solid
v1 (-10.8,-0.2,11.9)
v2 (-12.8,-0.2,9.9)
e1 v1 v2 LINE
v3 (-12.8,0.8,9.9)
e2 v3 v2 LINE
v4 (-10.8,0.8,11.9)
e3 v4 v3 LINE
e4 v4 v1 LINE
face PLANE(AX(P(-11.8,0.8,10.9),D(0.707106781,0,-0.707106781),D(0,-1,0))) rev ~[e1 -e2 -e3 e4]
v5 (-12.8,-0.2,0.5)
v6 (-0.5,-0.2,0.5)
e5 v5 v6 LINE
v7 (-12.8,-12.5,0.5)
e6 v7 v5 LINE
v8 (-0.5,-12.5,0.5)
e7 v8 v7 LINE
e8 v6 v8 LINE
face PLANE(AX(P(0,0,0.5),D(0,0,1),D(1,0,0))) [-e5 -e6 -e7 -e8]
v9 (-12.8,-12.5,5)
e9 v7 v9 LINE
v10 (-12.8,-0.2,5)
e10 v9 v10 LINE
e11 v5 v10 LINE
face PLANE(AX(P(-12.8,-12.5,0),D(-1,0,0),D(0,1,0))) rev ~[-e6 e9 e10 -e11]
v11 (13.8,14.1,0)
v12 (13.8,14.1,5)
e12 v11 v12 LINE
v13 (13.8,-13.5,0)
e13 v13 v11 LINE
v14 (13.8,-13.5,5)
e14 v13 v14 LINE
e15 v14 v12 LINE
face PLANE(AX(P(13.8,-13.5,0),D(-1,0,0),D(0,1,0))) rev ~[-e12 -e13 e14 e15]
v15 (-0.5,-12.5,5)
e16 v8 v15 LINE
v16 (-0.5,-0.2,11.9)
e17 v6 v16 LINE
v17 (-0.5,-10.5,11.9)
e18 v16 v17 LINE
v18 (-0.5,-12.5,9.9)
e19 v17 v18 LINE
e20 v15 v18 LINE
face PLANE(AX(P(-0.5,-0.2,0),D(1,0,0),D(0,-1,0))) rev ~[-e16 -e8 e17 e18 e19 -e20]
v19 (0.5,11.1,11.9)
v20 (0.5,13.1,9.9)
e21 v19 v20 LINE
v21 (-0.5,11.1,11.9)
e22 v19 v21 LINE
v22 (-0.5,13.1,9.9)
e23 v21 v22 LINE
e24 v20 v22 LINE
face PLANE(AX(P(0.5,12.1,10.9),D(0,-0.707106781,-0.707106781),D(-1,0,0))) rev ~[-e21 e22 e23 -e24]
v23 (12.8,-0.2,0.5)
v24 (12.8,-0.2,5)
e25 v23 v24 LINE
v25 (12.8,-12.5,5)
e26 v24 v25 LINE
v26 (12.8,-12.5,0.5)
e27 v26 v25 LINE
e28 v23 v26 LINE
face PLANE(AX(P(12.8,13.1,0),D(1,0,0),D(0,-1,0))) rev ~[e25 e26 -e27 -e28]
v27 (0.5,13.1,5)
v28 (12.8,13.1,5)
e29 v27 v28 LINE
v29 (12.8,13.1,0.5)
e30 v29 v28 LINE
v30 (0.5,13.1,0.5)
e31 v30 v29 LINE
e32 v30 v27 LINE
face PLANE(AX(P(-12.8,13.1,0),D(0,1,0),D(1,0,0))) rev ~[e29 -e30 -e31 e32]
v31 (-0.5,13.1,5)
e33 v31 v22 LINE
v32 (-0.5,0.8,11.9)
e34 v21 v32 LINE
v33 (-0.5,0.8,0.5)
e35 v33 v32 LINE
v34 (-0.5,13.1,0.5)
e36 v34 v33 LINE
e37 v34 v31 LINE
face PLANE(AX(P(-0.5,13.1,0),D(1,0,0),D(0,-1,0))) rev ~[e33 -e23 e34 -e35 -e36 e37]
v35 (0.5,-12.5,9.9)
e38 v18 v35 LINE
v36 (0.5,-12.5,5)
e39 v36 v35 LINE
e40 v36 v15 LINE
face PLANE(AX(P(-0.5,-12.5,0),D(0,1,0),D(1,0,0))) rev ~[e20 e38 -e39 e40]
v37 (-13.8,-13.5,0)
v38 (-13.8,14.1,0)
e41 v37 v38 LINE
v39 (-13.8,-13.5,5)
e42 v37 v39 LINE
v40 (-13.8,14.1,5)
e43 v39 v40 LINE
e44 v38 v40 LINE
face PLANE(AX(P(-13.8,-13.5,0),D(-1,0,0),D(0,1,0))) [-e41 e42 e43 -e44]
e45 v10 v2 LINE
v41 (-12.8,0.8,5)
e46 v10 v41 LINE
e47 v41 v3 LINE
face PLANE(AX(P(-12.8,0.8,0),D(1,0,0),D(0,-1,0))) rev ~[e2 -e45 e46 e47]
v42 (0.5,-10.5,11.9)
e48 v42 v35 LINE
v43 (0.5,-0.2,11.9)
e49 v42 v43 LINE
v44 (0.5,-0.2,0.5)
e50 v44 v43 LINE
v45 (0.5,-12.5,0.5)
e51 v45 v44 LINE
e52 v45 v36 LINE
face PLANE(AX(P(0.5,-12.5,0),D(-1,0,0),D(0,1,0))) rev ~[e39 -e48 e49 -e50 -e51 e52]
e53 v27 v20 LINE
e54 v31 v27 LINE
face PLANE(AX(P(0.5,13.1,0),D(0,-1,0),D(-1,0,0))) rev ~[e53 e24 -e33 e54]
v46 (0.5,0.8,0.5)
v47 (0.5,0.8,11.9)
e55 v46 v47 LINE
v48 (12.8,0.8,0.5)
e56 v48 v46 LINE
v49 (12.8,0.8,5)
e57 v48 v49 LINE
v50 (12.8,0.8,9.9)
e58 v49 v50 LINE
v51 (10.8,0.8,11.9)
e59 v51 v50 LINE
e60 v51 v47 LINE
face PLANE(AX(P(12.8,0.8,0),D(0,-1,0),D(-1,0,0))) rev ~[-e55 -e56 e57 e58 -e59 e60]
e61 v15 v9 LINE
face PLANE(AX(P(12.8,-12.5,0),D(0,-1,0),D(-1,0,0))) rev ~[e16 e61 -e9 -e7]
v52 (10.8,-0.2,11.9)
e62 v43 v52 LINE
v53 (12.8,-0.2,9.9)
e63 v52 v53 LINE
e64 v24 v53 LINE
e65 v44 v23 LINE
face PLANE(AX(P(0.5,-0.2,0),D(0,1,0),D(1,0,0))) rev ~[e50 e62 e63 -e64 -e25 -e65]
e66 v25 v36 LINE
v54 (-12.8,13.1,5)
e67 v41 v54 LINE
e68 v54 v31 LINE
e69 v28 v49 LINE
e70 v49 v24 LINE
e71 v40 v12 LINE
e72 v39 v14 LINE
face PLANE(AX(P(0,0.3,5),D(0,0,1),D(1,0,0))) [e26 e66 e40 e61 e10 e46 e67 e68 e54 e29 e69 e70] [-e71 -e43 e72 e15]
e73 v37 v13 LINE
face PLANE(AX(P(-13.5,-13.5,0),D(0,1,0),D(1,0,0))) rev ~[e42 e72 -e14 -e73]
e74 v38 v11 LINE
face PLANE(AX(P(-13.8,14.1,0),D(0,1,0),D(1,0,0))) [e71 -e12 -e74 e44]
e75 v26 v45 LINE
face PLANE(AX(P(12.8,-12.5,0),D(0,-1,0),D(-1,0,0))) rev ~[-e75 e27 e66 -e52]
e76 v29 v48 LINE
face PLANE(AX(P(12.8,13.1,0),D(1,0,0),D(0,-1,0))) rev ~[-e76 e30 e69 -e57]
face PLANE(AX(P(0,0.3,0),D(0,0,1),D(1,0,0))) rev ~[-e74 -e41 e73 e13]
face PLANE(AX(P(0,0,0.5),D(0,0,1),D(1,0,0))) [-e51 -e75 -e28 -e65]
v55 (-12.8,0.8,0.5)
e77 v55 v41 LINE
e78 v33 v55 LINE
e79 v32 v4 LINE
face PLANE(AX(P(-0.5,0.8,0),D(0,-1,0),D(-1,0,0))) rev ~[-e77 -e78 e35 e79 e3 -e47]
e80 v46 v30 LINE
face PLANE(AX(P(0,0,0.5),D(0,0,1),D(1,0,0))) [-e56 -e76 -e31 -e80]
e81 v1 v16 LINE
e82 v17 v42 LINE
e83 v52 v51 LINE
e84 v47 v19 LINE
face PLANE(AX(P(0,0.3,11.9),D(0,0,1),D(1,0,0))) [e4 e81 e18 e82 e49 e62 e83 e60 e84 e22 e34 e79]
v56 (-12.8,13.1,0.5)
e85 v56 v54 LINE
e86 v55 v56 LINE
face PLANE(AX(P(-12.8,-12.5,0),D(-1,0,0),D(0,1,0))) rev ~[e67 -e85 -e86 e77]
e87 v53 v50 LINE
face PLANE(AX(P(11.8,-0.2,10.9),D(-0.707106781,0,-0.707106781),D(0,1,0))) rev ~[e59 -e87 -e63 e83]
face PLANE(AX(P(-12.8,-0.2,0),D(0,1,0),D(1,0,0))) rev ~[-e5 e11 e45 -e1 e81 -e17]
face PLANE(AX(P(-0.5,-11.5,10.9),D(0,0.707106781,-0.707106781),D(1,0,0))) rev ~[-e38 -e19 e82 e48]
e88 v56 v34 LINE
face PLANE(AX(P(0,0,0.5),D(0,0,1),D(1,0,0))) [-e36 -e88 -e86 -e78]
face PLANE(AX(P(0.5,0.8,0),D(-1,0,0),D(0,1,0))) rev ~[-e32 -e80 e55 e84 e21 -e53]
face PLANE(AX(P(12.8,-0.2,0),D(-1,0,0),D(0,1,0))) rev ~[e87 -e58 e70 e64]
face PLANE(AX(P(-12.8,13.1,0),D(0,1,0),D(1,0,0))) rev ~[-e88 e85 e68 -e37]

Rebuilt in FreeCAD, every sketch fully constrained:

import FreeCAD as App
import Part
import Sketcher

V = App.Vector
Q = App.Units.Quantity


def edges_at(feature, points):
    """Names of the edges that pass closest to the given points."""
    edges = feature.Shape.Edges
    near = lambda p: min(range(len(edges)), key=lambda i: edges[i].distToShape(Part.Vertex(*p))[0])
    return sorted({f"Edge{near(p) + 1}" for p in points})

doc = App.newDocument("Part")
body = doc.addObject("PartDesign::Body", "Body")

sketch1 = body.newObject("Sketcher::SketchObject", "Sketch")
sketch1.AttachmentSupport = (doc.getObject("XY_Plane"), [""])
sketch1.MapMode = "FlatFace"
sketch1.addGeometry([
    Part.LineSegment(V(0.5, 13.1, 0), V(-0.5, 13.1, 0)),
    Part.LineSegment(V(-0.5, 13.1, 0), V(-0.5, 0.8, 0)),
    Part.LineSegment(V(-0.5, 0.8, 0), V(-12.8, 0.8, 0)),
    Part.LineSegment(V(-12.8, 0.8, 0), V(-12.8, -0.2, 0)),
    Part.LineSegment(V(-12.8, -0.2, 0), V(-0.5, -0.2, 0)),
    Part.LineSegment(V(-0.5, -0.2, 0), V(-0.5, -12.5, 0)),
    Part.LineSegment(V(-0.5, -12.5, 0), V(0.5, -12.5, 0)),
    Part.LineSegment(V(0.5, -12.5, 0), V(0.5, -0.2, 0)),
    Part.LineSegment(V(0.5, -0.2, 0), V(12.8, -0.2, 0)),
    Part.LineSegment(V(12.8, -0.2, 0), V(12.8, 0.8, 0)),
    Part.LineSegment(V(12.8, 0.8, 0), V(0.5, 0.8, 0)),
    Part.LineSegment(V(0.5, 0.8, 0), V(0.5, 13.1, 0)),
], False)
sketch1.addConstraint([
    Sketcher.Constraint("Coincident", 0, 2, 1, 1),
    Sketcher.Constraint("Coincident", 1, 2, 2, 1),
    Sketcher.Constraint("Coincident", 2, 2, 3, 1),
    Sketcher.Constraint("Coincident", 3, 2, 4, 1),
    Sketcher.Constraint("Coincident", 4, 2, 5, 1),
    Sketcher.Constraint("Coincident", 5, 2, 6, 1),
    Sketcher.Constraint("Coincident", 6, 2, 7, 1),
    Sketcher.Constraint("Coincident", 7, 2, 8, 1),
    Sketcher.Constraint("Coincident", 8, 2, 9, 1),
    Sketcher.Constraint("Coincident", 9, 2, 10, 1),
    Sketcher.Constraint("Coincident", 10, 2, 11, 1),
    Sketcher.Constraint("Coincident", 11, 2, 0, 1),
    Sketcher.Constraint("Horizontal", 0),
    Sketcher.Constraint("Vertical", 1),
    Sketcher.Constraint("Horizontal", 2),
    Sketcher.Constraint("Vertical", 3),
    Sketcher.Constraint("Horizontal", 4),
    Sketcher.Constraint("Vertical", 5),
    Sketcher.Constraint("Horizontal", 6),
    Sketcher.Constraint("Vertical", 7),
    Sketcher.Constraint("Horizontal", 8),
    Sketcher.Constraint("Vertical", 9),
    Sketcher.Constraint("Horizontal", 10),
    Sketcher.Constraint("Vertical", 11),
    Sketcher.Constraint("Symmetric", 4, 2, 7, 2, -2),
    Sketcher.Constraint("Symmetric", 2, 2, 9, 2, -2),
    Sketcher.Constraint("Vertical", 1, 2, 4, 2),
    Sketcher.Constraint("Vertical", 7, 2, 10, 2),
    Sketcher.Constraint("Equal", 10, 1),
    Sketcher.Constraint("Equal", 6, 3),
    Sketcher.Constraint("Equal", 1, 5),
    Sketcher.Constraint("DistanceX", 0, 2, 0, 1, Q("1 mm")),
    Sketcher.Constraint("DistanceX", 2, 2, 2, 1, Q("12.3 mm")),
    Sketcher.Constraint("DistanceY", -1, 1, 0, 2, Q("13.1 mm")),
])
pad1 = body.newObject("PartDesign::Pad", "Pad")
pad1.Profile = sketch1
pad1.Length = 11.9

sketch2 = body.newObject("Sketcher::SketchObject", "Sketch001")
sketch2.AttachmentSupport = (doc.getObject("XY_Plane"), [""])
sketch2.MapMode = "FlatFace"
sketch2.addGeometry([
    Part.LineSegment(V(-13.8, 14.1, 0), V(-13.8, -13.5, 0)),
    Part.LineSegment(V(-13.8, -13.5, 0), V(13.8, -13.5, 0)),
    Part.LineSegment(V(13.8, -13.5, 0), V(13.8, 14.1, 0)),
    Part.LineSegment(V(13.8, 14.1, 0), V(-13.8, 14.1, 0)),
    Part.LineSegment(V(-12.8, -12.5, 0), V(-12.8, 13.1, 0)),
    Part.LineSegment(V(-12.8, 13.1, 0), V(12.8, 13.1, 0)),
    Part.LineSegment(V(12.8, 13.1, 0), V(12.8, -12.5, 0)),
    Part.LineSegment(V(12.8, -12.5, 0), V(-12.8, -12.5, 0)),
], False)
sketch2.addConstraint([
    Sketcher.Constraint("Coincident", 0, 2, 1, 1),
    Sketcher.Constraint("Coincident", 1, 2, 2, 1),
    Sketcher.Constraint("Coincident", 2, 2, 3, 1),
    Sketcher.Constraint("Coincident", 3, 2, 0, 1),
    Sketcher.Constraint("Coincident", 4, 2, 5, 1),
    Sketcher.Constraint("Coincident", 5, 2, 6, 1),
    Sketcher.Constraint("Coincident", 6, 2, 7, 1),
    Sketcher.Constraint("Coincident", 7, 2, 4, 1),
    Sketcher.Constraint("Vertical", 0),
    Sketcher.Constraint("Horizontal", 1),
    Sketcher.Constraint("Vertical", 2),
    Sketcher.Constraint("Horizontal", 3),
    Sketcher.Constraint("Vertical", 4),
    Sketcher.Constraint("Horizontal", 5),
    Sketcher.Constraint("Vertical", 6),
    Sketcher.Constraint("Horizontal", 7),
    Sketcher.Constraint("Equal", 3, 0),
    Sketcher.Constraint("Equal", 7, 4),
    Sketcher.Constraint("DistanceX", 1, 1, 1, 2, Q("27.6 mm")),
    Sketcher.Constraint("DistanceX", 5, 1, 5, 2, Q("25.6 mm")),
    Sketcher.Constraint("DistanceX", 3, 2, 4, 2, Q("1 mm")),
    Sketcher.Constraint("DistanceY", 4, 2, 3, 2, Q("1 mm")),
    Sketcher.Constraint("DistanceX", 0, 2, -1, 1, Q("13.8 mm")),
    Sketcher.Constraint("DistanceY", 0, 2, -1, 1, Q("13.5 mm")),
])
pad2 = body.newObject("PartDesign::Pad", "Pad001")
pad2.Profile = sketch2
pad2.Length = 5

sketch3 = body.newObject("Sketcher::SketchObject", "Sketch002")
sketch3.AttachmentSupport = (doc.getObject("XY_Plane"), [""])
sketch3.MapMode = "FlatFace"
sketch3.addGeometry([
    Part.LineSegment(V(-13.5, 13.5, 0), V(-13.5, -13.5, 0)),
    Part.LineSegment(V(-13.5, -13.5, 0), V(13.5, -13.5, 0)),
    Part.LineSegment(V(13.5, -13.5, 0), V(13.5, 13.5, 0)),
    Part.LineSegment(V(13.5, 13.5, 0), V(-13.5, 13.5, 0)),
], False)
sketch3.addConstraint([
    Sketcher.Constraint("Coincident", 0, 2, 1, 1),
    Sketcher.Constraint("Coincident", 1, 2, 2, 1),
    Sketcher.Constraint("Coincident", 2, 2, 3, 1),
    Sketcher.Constraint("Coincident", 3, 2, 0, 1),
    Sketcher.Constraint("Vertical", 0),
    Sketcher.Constraint("Horizontal", 1),
    Sketcher.Constraint("Vertical", 2),
    Sketcher.Constraint("Horizontal", 3),
    Sketcher.Constraint("Symmetric", 0, 2, 2, 2, -1, 1),
    Sketcher.Constraint("Equal", 3, 0),
    Sketcher.Constraint("DistanceX", 1, 1, 1, 2, Q("27 mm")),
])
pad3 = body.newObject("PartDesign::Pad", "Pad002")
pad3.Profile = sketch3
pad3.Length = 0.5
doc.recompute()

chamfer = body.newObject("PartDesign::Chamfer", "Chamfer")
chamfer.Base = (pad3, edges_at(pad3, [
    (0, 13.1, 11.9),
    (-12.8, 0.3, 11.9),
    (0, -12.5, 11.9),
    (12.8, 0.3, 11.9),
]))
chamfer.Size = 2

doc.recompute()
